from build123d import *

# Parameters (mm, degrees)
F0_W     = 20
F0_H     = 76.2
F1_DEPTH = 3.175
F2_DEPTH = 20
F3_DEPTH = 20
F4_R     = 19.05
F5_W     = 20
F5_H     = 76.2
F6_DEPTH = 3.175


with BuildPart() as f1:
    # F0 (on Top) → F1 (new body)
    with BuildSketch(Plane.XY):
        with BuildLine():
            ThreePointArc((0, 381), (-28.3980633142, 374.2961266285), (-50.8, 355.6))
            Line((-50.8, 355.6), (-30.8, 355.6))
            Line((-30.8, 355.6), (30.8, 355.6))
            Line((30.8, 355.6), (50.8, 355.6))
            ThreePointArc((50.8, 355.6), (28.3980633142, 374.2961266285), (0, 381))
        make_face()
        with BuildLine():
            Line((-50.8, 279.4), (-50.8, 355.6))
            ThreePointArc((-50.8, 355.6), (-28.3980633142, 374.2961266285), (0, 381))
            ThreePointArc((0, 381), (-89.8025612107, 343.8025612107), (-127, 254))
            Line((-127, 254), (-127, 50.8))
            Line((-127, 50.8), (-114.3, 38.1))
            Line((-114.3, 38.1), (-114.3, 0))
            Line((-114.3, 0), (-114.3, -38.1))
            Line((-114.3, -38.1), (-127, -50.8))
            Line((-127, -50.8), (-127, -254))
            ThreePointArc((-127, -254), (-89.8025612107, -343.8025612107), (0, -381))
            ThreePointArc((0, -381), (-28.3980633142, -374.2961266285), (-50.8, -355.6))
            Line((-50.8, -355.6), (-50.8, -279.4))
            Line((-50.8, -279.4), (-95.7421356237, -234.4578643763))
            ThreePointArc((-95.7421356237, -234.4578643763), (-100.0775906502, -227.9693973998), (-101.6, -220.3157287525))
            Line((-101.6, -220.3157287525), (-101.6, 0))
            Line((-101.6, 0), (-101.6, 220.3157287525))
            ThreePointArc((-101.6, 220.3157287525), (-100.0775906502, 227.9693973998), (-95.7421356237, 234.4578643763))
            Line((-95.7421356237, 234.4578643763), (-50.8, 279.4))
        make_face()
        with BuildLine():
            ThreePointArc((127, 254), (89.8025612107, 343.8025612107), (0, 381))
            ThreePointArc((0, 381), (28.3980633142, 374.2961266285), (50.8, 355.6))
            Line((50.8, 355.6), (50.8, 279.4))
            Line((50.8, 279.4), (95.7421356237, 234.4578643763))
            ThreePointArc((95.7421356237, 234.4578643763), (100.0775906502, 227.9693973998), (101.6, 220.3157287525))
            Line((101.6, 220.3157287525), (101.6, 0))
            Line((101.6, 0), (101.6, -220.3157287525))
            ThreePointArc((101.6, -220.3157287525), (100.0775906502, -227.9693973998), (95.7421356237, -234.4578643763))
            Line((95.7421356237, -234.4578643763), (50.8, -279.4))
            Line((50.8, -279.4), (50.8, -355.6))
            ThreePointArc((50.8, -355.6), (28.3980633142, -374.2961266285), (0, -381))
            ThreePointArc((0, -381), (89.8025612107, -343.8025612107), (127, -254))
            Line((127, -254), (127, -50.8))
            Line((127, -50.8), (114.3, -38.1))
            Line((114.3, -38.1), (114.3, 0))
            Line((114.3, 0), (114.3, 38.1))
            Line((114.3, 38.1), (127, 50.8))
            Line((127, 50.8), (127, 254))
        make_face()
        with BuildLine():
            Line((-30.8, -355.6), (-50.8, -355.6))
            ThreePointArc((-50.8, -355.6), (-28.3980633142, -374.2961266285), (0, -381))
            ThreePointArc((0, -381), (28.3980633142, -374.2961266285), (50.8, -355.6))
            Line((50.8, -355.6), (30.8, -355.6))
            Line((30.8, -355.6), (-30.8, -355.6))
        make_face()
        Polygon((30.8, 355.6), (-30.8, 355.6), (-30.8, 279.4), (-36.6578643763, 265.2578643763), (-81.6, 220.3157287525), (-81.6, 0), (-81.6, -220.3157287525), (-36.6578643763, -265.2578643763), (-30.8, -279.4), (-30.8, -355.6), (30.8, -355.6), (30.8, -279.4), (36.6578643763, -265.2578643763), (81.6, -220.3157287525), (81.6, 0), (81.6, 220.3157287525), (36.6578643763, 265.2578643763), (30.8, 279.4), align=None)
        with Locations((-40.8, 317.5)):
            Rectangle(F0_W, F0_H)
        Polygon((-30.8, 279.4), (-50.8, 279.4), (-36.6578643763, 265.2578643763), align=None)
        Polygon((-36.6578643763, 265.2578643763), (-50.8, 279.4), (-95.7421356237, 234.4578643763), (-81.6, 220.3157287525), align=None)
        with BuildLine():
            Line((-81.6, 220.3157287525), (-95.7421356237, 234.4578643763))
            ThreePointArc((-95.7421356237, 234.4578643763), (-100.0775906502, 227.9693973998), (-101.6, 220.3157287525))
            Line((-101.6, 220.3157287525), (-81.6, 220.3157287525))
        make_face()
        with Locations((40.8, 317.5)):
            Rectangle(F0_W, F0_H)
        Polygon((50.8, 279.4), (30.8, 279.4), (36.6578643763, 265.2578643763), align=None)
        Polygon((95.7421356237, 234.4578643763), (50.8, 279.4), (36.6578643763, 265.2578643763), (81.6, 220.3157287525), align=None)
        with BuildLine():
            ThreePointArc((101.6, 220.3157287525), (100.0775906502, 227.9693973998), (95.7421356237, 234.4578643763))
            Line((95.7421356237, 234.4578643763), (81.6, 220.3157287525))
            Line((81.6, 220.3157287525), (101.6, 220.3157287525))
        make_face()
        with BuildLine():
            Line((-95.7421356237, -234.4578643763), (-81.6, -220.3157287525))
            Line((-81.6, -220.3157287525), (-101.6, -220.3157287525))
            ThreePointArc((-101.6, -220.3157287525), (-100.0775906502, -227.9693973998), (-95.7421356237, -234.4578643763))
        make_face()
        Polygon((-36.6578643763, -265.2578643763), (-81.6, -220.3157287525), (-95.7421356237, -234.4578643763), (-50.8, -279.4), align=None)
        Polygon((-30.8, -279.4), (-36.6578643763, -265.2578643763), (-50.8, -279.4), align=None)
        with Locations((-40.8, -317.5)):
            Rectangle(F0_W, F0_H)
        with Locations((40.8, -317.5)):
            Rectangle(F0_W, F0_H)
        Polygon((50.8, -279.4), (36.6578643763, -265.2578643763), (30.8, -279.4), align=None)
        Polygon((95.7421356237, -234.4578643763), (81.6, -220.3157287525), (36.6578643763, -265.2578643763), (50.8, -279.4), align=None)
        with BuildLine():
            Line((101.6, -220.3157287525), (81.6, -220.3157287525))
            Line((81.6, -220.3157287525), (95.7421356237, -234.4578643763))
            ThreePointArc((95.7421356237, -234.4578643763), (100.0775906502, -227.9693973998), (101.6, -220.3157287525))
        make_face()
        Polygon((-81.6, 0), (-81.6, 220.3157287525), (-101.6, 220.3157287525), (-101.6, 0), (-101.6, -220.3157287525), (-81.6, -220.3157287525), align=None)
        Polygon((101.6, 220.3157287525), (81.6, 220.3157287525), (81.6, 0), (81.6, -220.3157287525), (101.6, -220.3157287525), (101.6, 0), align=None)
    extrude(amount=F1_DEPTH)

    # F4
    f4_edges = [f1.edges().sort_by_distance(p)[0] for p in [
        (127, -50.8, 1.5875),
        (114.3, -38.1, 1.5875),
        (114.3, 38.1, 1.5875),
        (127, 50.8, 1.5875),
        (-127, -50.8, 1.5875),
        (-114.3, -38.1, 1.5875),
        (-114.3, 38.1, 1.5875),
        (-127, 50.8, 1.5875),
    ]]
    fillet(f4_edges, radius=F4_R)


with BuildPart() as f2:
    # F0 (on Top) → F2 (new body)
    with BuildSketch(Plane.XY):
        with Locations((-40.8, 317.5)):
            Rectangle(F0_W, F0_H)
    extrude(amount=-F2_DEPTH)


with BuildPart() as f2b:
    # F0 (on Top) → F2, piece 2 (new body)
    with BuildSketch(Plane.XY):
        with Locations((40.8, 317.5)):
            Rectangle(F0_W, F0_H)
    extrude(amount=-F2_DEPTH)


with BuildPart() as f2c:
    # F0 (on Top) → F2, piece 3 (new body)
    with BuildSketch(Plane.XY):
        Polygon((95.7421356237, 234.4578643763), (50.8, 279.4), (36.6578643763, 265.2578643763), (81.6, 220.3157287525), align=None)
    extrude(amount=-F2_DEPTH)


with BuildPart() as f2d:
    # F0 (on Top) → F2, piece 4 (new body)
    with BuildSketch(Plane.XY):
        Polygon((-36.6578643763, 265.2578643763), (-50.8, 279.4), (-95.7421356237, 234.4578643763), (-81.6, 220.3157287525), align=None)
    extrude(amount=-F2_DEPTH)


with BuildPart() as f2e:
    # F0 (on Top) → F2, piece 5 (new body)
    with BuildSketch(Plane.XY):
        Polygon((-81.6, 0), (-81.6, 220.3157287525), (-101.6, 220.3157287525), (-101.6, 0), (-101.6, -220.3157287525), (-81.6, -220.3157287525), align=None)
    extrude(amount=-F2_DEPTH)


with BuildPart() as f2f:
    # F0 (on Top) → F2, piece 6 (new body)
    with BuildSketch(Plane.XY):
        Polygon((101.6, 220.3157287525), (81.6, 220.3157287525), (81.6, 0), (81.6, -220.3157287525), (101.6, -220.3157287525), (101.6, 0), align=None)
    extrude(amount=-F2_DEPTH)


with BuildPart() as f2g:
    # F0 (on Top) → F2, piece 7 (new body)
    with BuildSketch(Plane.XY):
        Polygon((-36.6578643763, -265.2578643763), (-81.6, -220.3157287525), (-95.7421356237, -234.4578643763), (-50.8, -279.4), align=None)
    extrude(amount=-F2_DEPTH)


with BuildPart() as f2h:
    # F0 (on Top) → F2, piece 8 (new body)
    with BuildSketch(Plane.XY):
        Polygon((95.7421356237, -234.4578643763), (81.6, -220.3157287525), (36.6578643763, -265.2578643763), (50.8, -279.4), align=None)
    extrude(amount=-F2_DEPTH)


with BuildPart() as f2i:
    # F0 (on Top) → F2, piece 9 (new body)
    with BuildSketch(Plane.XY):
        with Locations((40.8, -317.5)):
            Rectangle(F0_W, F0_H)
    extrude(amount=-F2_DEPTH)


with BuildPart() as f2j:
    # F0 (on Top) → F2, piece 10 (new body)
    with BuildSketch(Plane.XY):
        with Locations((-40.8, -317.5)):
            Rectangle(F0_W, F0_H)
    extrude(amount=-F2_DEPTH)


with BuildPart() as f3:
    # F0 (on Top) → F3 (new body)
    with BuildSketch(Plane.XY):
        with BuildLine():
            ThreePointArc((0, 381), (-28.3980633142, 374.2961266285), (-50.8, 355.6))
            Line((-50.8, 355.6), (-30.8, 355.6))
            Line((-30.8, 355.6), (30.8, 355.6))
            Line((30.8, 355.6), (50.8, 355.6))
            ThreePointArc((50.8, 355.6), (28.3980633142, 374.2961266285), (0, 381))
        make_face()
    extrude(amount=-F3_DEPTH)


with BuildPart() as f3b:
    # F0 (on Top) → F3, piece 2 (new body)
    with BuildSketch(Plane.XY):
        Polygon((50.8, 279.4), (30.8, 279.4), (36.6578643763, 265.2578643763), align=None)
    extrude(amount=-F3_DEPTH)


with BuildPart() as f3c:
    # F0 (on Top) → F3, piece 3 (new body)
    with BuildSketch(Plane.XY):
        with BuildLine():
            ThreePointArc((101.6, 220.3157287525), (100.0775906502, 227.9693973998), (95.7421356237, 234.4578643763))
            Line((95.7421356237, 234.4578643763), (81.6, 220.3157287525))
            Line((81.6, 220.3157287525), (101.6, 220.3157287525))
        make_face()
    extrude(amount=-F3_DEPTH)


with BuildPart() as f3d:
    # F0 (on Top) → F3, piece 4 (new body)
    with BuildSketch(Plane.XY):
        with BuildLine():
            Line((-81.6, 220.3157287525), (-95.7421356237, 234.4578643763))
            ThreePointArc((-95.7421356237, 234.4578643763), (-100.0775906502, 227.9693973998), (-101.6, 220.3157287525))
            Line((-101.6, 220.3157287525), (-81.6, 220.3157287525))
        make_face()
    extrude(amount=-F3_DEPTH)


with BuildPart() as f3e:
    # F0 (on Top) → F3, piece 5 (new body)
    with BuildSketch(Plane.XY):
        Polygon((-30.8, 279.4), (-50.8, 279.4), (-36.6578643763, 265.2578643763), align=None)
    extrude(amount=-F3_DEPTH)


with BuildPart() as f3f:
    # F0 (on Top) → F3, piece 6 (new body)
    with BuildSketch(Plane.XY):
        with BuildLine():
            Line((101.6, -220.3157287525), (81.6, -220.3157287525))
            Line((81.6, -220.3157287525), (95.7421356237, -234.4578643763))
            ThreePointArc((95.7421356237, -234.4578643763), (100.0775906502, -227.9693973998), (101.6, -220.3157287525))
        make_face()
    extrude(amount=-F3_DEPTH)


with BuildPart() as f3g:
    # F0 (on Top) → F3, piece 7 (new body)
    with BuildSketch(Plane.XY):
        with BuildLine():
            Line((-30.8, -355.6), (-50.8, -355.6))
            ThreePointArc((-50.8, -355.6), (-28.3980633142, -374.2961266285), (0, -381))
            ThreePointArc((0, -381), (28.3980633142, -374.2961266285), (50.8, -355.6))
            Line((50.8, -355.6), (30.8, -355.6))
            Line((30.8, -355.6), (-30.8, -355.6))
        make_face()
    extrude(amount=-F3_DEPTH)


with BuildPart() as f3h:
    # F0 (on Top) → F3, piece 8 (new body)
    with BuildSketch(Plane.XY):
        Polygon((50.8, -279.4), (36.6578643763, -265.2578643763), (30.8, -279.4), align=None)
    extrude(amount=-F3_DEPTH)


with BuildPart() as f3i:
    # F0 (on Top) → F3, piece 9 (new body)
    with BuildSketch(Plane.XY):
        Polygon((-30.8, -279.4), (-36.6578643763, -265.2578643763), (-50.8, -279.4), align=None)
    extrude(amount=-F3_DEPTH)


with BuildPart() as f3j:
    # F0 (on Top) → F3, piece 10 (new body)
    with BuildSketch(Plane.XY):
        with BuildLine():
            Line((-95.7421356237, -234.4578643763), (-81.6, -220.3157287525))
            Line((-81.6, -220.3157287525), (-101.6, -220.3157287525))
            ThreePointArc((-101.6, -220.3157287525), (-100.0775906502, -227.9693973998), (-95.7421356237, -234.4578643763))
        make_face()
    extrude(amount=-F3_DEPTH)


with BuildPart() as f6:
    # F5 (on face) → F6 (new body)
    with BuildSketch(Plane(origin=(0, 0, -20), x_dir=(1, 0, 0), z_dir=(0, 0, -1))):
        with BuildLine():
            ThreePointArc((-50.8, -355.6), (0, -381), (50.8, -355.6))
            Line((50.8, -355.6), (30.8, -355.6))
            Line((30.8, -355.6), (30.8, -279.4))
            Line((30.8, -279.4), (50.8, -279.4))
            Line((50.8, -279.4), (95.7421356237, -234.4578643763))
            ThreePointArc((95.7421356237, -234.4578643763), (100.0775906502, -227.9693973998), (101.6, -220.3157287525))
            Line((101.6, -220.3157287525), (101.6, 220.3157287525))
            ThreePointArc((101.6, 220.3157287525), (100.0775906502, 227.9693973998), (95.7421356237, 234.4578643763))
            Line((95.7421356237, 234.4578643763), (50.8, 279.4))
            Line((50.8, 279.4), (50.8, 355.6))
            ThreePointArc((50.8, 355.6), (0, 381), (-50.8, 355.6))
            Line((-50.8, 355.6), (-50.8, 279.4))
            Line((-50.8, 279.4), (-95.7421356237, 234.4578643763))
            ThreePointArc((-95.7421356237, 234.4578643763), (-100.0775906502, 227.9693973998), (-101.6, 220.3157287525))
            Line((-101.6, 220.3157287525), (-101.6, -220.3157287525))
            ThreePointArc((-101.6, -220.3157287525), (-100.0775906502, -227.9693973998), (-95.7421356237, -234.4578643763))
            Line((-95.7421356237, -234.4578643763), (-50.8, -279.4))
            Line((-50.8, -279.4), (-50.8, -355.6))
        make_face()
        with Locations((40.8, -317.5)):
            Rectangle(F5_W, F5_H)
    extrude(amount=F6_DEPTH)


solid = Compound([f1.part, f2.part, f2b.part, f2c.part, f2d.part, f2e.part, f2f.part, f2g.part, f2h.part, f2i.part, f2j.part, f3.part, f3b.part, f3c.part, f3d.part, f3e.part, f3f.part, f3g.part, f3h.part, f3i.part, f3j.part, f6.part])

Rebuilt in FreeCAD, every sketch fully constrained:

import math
import FreeCAD as App
import Part
import Sketcher
Q = App.Units.Quantity


def edges_at(feature, points):
    """Names of the edges that pass closest to the given points."""
    edges = feature.Shape.Edges
    near = lambda p: min(range(len(edges)), key=lambda i: edges[i].distToShape(Part.Vertex(*p))[0])
    return sorted({f"Edge{near(p) + 1}" for p in points})


def add_polygon(sketch, points):
    """Adds a closed chain of lines whose ends are joined by coincident constraints."""
    first, n = sketch.GeometryCount, len(points)
    for a, b in zip(points, points[1:] + points[:1]):
        sketch.addGeometry(Part.LineSegment(App.Vector(*a, 0), App.Vector(*b, 0)), False)
    for i in range(n):
        sketch.addConstraint(Sketcher.Constraint("Coincident", first + i, 2, first + (i + 1) % n, 1))

doc = App.newDocument("Part")
body = doc.addObject("PartDesign::Body", "Body")

# Sketch on XY plane
sketch1 = body.newObject("Sketcher::SketchObject", "Sketch")
sketch1.AttachmentSupport = (doc.getObject("XY_Plane"), [""])
sketch1.MapMode = "FlatFace"
sketch1.addGeometry([
    Part.ArcOfCircle(Part.Circle(App.Vector(0, -254, 0), App.Vector(0, 0, 1), 127), math.radians(180), math.radians(360)),  # 0
    Part.LineSegment(App.Vector(127, -254, 0), App.Vector(127, -50.8, 0)),  # 1
    Part.LineSegment(App.Vector(127, -50.8, 0), App.Vector(114.3, -38.1, 0)),  # 2
    Part.LineSegment(App.Vector(114.3, -38.1, 0), App.Vector(114.3, 38.1, 0)),  # 3
    Part.LineSegment(App.Vector(114.3, 38.1, 0), App.Vector(127, 50.8, 0)),  # 4
    Part.LineSegment(App.Vector(127, 50.8, 0), App.Vector(127, 254, 0)),  # 5
    Part.ArcOfCircle(Part.Circle(App.Vector(0, 254, 0), App.Vector(0, 0, 1), 127), math.radians(0), math.radians(180)),  # 6
    Part.LineSegment(App.Vector(-127, 254, 0), App.Vector(-127, 50.8, 0)),  # 7
    Part.LineSegment(App.Vector(-127, 50.8, 0), App.Vector(-114.3, 38.1, 0)),  # 8
    Part.LineSegment(App.Vector(-114.3, 38.1, 0), App.Vector(-114.3, -38.1, 0)),  # 9
    Part.LineSegment(App.Vector(-114.3, -38.1, 0), App.Vector(-127, -50.8, 0)),  # 10
    Part.LineSegment(App.Vector(-127, -50.8, 0), App.Vector(-127, -254, 0)),  # 11
], False)
sketch1.addConstraint([
    Sketcher.Constraint("Tangent", 0, 2, 1, 1),
    Sketcher.Constraint("Coincident", 1, 2, 2, 1),
    Sketcher.Constraint("Coincident", 2, 2, 3, 1),
    Sketcher.Constraint("Coincident", 3, 2, 4, 1),
    Sketcher.Constraint("Coincident", 4, 2, 5, 1),
    Sketcher.Constraint("Tangent", 5, 2, 6, 1),
    Sketcher.Constraint("Tangent", 6, 2, 7, 1),
    Sketcher.Constraint("Coincident", 7, 2, 8, 1),
    Sketcher.Constraint("Coincident", 8, 2, 9, 1),
    Sketcher.Constraint("Coincident", 9, 2, 10, 1),
    Sketcher.Constraint("Coincident", 10, 2, 11, 1),
    Sketcher.Constraint("Tangent", 11, 2, 0, 1),
    Sketcher.Constraint("Vertical", 1),
    Sketcher.Constraint("Vertical", 3),
    Sketcher.Constraint("Vertical", 5),
    Sketcher.Constraint("Vertical", 7),
    Sketcher.Constraint("Vertical", 9),
    Sketcher.Constraint("Vertical", 11),
    Sketcher.Constraint("Equal", 0, 6),
    Sketcher.Constraint("Symmetric", 0, 3, 6, 3, -1, 1),
    Sketcher.Constraint("Symmetric", 2, 2, 8, 2, -1, 1),
    Sketcher.Constraint("Symmetric", 4, 2, 7, 2, -2),
    Sketcher.Constraint("Perpendicular", 2, 4),
    Sketcher.Constraint("Perpendicular", 4, 8),
    Sketcher.Constraint("Perpendicular", 8, 10),
    Sketcher.Constraint("Horizontal", 3, 2, 8, 2),
    Sketcher.Constraint("Horizontal", 2, 2, 9, 2),
    Sketcher.Constraint("Radius", 0, Q("5 in")),
    Sketcher.Constraint("DistanceY", 1, 1, 1, 2, Q("8 in")),
    Sketcher.Constraint("DistanceY", 3, 1, 3, 2, Q("3 in")),
    Sketcher.Constraint("DistanceY", 0, 3, -1, 1, Q("10 in")),
])
pad1 = body.newObject("PartDesign::Pad", "Pad")
pad1.Profile = sketch1
pad1.Length = Q("0.125 in")
doc.recompute()

fillet = body.newObject("PartDesign::Fillet", "Fillet")
fillet.Base = (pad1, edges_at(pad1, [
    (127, -50.8, 1.587),
    (114.3, -38.1, 1.587),
    (114.3, 38.1, 1.587),
    (127, 50.8, 1.587),
    (-127, -50.8, 1.587),
    (-114.3, -38.1, 1.587),
    (-114.3, 38.1, 1.587),
    (-127, 50.8, 1.587),
]))
fillet.Radius = Q("0.75 in")
body2 = doc.addObject("PartDesign::Body", "Body001")

# Sketch on XY plane
sketch2 = body2.newObject("Sketcher::SketchObject", "Sketch001")
sketch2.AttachmentSupport = (doc.getObject("XY_Plane001"), [""])
sketch2.MapMode = "FlatFace"
add_polygon(sketch2, [(-50.8, 355.6), (-50.8, 279.4), (-30.8, 279.4), (-30.8, 355.6)])  # lines 0-3
sketch2.addConstraint([
    Sketcher.Constraint("Vertical", 0),
    Sketcher.Constraint("Horizontal", 1),
    Sketcher.Constraint("Vertical", 2),
    Sketcher.Constraint("Horizontal", 3),
    Sketcher.Constraint("DistanceY", 0, 2, 0, 1, Q("3 in")),
    Sketcher.Constraint("DistanceX", 0, 2, -1, 1, Q("2 in")),
    Sketcher.Constraint("DistanceY", -1, 1, 0, 2, Q("11 in")),
    Sketcher.Constraint("DistanceX", 1, 1, 1, 2, Q("20 mm")),
])
pad2 = body2.newObject("PartDesign::Pad", "Pad001")
pad2.Profile = sketch2
pad2.Length = 20
pad2.Reversed = True
body3 = doc.addObject("PartDesign::Body", "Body002")

# Sketch on XY plane
sketch3 = body3.newObject("Sketcher::SketchObject", "Sketch002")
sketch3.AttachmentSupport = (doc.getObject("XY_Plane002"), [""])
sketch3.MapMode = "FlatFace"
add_polygon(sketch3, [(30.8, 355.6), (30.8, 279.4), (50.8, 279.4), (50.8, 355.6)])  # lines 0-3
sketch3.addConstraint([
    Sketcher.Constraint("Vertical", 0),
    Sketcher.Constraint("Horizontal", 1),
    Sketcher.Constraint("Vertical", 2),
    Sketcher.Constraint("Horizontal", 3),
    Sketcher.Constraint("DistanceY", 0, 2, 0, 1, Q("3 in")),
    Sketcher.Constraint("DistanceY", -1, 1, 0, 2, Q("11 in")),
    Sketcher.Constraint("DistanceX", -1, 1, 1, 2, Q("2 in")),
    Sketcher.Constraint("DistanceX", 1, 1, 1, 2, Q("20 mm")),
])
pad3 = body3.newObject("PartDesign::Pad", "Pad002")
pad3.Profile = sketch3
pad3.Length = 20
pad3.Reversed = True
body4 = doc.addObject("PartDesign::Body", "Body003")

# Sketch on XY plane
sketch4 = body4.newObject("Sketcher::SketchObject", "Sketch003")
sketch4.AttachmentSupport = (doc.getObject("XY_Plane003"), [""])
sketch4.MapMode = "FlatFace"
add_polygon(sketch4, [(95.742136, 234.457864), (50.8, 279.4), (36.657864, 265.257864), (81.6, 220.315729)])  # lines 0-3
sketch4.addConstraint([
    Sketcher.Constraint("Perpendicular", 0, 1),
    Sketcher.Constraint("Perpendicular", 1, 2),
    Sketcher.Constraint("Perpendicular", 2, 3),
    Sketcher.Constraint("DistanceX", -1, 1, 0, 2, Q("2 in")),
    Sketcher.Constraint("DistanceY", -1, 1, 0, 2, Q("11 in")),
    Sketcher.Constraint("Angle", 0, Q("135 deg")),
    Sketcher.Constraint("Distance", 1, Q("20 mm")),
    Sketcher.Constraint("DistanceX", -1, 1, 2, 2, Q("81.6 mm")),
])
pad4 = body4.newObject("PartDesign::Pad", "Pad003")
pad4.Profile = sketch4
pad4.Length = 20
pad4.Reversed = True
body5 = doc.addObject("PartDesign::Body", "Body004")

# Sketch on XY plane
sketch5 = body5.newObject("Sketcher::SketchObject", "Sketch004")
sketch5.AttachmentSupport = (doc.getObject("XY_Plane004"), [""])
sketch5.MapMode = "FlatFace"
add_polygon(sketch5, [(-36.657864, 265.257864), (-50.8, 279.4), (-95.742136, 234.457864), (-81.6, 220.315729)])  # lines 0-3
sketch5.addConstraint([
    Sketcher.Constraint("Perpendicular", 0, 1),
    Sketcher.Constraint("Perpendicular", 1, 2),
    Sketcher.Constraint("Perpendicular", 2, 3),
    Sketcher.Constraint("DistanceX", 0, 2, -1, 1, Q("2 in")),
    Sketcher.Constraint("DistanceY", -1, 1, 0, 2, Q("11 in")),
    Sketcher.Constraint("Angle", 0, Q("135 deg")),
    Sketcher.Constraint("Distance", 0, Q("20 mm")),
    Sketcher.Constraint("DistanceX", 2, 2, -1, 1, Q("81.6 mm")),
])
pad5 = body5.newObject("PartDesign::Pad", "Pad004")
pad5.Profile = sketch5
pad5.Length = 20
pad5.Reversed = True
body6 = doc.addObject("PartDesign::Body", "Body005")

# Sketch on XY plane
sketch6 = body6.newObject("Sketcher::SketchObject", "Sketch005")
sketch6.AttachmentSupport = (doc.getObject("XY_Plane005"), [""])
sketch6.MapMode = "FlatFace"
add_polygon(sketch6, [(-81.6, 220.315729), (-101.6, 220.315729), (-101.6, -220.315729), (-81.6, -220.315729)])  # lines 0-3
sketch6.addConstraint([
    Sketcher.Constraint("Horizontal", 0),
    Sketcher.Constraint("Vertical", 1),
    Sketcher.Constraint("Horizontal", 2),
    Sketcher.Constraint("Vertical", 3),
    Sketcher.Constraint("DistanceX", 0, 2, -1, 1, Q("4 in")),
    Sketcher.Constraint("DistanceX", 0, 2, 0, 1, Q("20 mm")),
    Sketcher.Constraint("DistanceY", 1, 2, 1, 1, Q("440.631458 mm")),
    Sketcher.Constraint("DistanceY", -1, 1, 0, 2, Q("220.315729 mm")),
])
pad6 = body6.newObject("PartDesign::Pad", "Pad005")
pad6.Profile = sketch6
pad6.Length = 20
pad6.Reversed = True
body7 = doc.addObject("PartDesign::Body", "Body006")

# Sketch on XY plane
sketch7 = body7.newObject("Sketcher::SketchObject", "Sketch006")
sketch7.AttachmentSupport = (doc.getObject("XY_Plane006"), [""])
sketch7.MapMode = "FlatFace"
add_polygon(sketch7, [(101.6, 220.315729), (81.6, 220.315729), (81.6, -220.315729), (101.6, -220.315729)])  # lines 0-3
sketch7.addConstraint([
    Sketcher.Constraint("Horizontal", 0),
    Sketcher.Constraint("Vertical", 1),
    Sketcher.Constraint("Horizontal", 2),
    Sketcher.Constraint("Vertical", 3),
    Sketcher.Constraint("DistanceX", -1, 1, 2, 2, Q("4 in")),
    Sketcher.Constraint("DistanceX", 0, 2, 0, 1, Q("20 mm")),
    Sketcher.Constraint("DistanceY", 1, 2, 1, 1, Q("440.631458 mm")),
    Sketcher.Constraint("DistanceY", -1, 1, 0, 2, Q("220.315729 mm")),
])
pad7 = body7.newObject("PartDesign::Pad", "Pad006")
pad7.Profile = sketch7
pad7.Length = 20
pad7.Reversed = True
body8 = doc.addObject("PartDesign::Body", "Body007")

# Sketch on XY plane
sketch8 = body8.newObject("Sketcher::SketchObject", "Sketch007")
sketch8.AttachmentSupport = (doc.getObject("XY_Plane007"), [""])
sketch8.MapMode = "FlatFace"
add_polygon(sketch8, [(-36.657864, -265.257864), (-81.6, -220.315729), (-95.742136, -234.457864), (-50.8, -279.4)])  # lines 0-3
sketch8.addConstraint([
    Sketcher.Constraint("Perpendicular", 0, 1),
    Sketcher.Constraint("Perpendicular", 1, 2),
    Sketcher.Constraint("Perpendicular", 2, 3),
    Sketcher.Constraint("DistanceX", 2, 2, -1, 1, Q("2 in")),
    Sketcher.Constraint("DistanceY", 2, 2, -1, 1, Q("11 in")),
    Sketcher.Constraint("Angle", 0, Q("135 deg")),
    Sketcher.Constraint("Distance", 1, Q("20 mm")),
    Sketcher.Constraint("DistanceX", 0, 2, -1, 1, Q("81.6 mm")),
])
pad8 = body8.newObject("PartDesign::Pad", "Pad007")
pad8.Profile = sketch8
pad8.Length = 20
pad8.Reversed = True
body9 = doc.addObject("PartDesign::Body", "Body008")

# Sketch on XY plane
sketch9 = body9.newObject("Sketcher::SketchObject", "Sketch008")
sketch9.AttachmentSupport = (doc.getObject("XY_Plane008"), [""])
sketch9.MapMode = "FlatFace"
add_polygon(sketch9, [(95.742136, -234.457864), (81.6, -220.315729), (36.657864, -265.257864), (50.8, -279.4)])  # lines 0-3
sketch9.addConstraint([
    Sketcher.Constraint("Perpendicular", 0, 1),
    Sketcher.Constraint("Perpendicular", 1, 2),
    Sketcher.Constraint("Perpendicular", 2, 3),
    Sketcher.Constraint("DistanceX", -1, 1, 2, 2, Q("2 in")),
    Sketcher.Constraint("DistanceY", 2, 2, -1, 1, Q("11 in")),
    Sketcher.Constraint("Angle", 0, Q("135 deg")),
    Sketcher.Constraint("Distance", 0, Q("20 mm")),
    Sketcher.Constraint("DistanceX", -1, 1, 0, 2, Q("81.6 mm")),
])
pad9 = body9.newObject("PartDesign::Pad", "Pad008")
pad9.Profile = sketch9
pad9.Length = 20
pad9.Reversed = True
body10 = doc.addObject("PartDesign::Body", "Body009")

# Sketch on XY plane
sketch10 = body10.newObject("Sketcher::SketchObject", "Sketch009")
sketch10.AttachmentSupport = (doc.getObject("XY_Plane009"), [""])
sketch10.MapMode = "FlatFace"
add_polygon(sketch10, [(30.8, -279.4), (30.8, -355.6), (50.8, -355.6), (50.8, -279.4)])  # lines 0-3
sketch10.addConstraint([
    Sketcher.Constraint("Vertical", 0),
    Sketcher.Constraint("Horizontal", 1),
    Sketcher.Constraint("Vertical", 2),
    Sketcher.Constraint("Horizontal", 3),
    Sketcher.Constraint("DistanceY", 0, 2, 0, 1, Q("3 in")),
    Sketcher.Constraint("DistanceY", 0, 2, -1, 1, Q("14 in")),
    Sketcher.Constraint("DistanceX", -1, 1, 1, 2, Q("2 in")),
    Sketcher.Constraint("DistanceX", 1, 1, 1, 2, Q("20 mm")),
])
pad10 = body10.newObject("PartDesign::Pad", "Pad009")
pad10.Profile = sketch10
pad10.Length = 20
pad10.Reversed = True
body11 = doc.addObject("PartDesign::Body", "Body010")

# Sketch on XY plane
sketch11 = body11.newObject("Sketcher::SketchObject", "Sketch010")
sketch11.AttachmentSupport = (doc.getObject("XY_Plane010"), [""])
sketch11.MapMode = "FlatFace"
add_polygon(sketch11, [(-50.8, -279.4), (-50.8, -355.6), (-30.8, -355.6), (-30.8, -279.4)])  # lines 0-3
sketch11.addConstraint([
    Sketcher.Constraint("Vertical", 0),
    Sketcher.Constraint("Horizontal", 1),
    Sketcher.Constraint("Vertical", 2),
    Sketcher.Constraint("Horizontal", 3),
    Sketcher.Constraint("DistanceY", 0, 2, 0, 1, Q("3 in")),
    Sketcher.Constraint("DistanceX", 0, 2, -1, 1, Q("2 in")),
    Sketcher.Constraint("DistanceY", 0, 2, -1, 1, Q("14 in")),
    Sketcher.Constraint("DistanceX", 1, 1, 1, 2, Q("20 mm")),
])
pad11 = body11.newObject("PartDesign::Pad", "Pad010")
pad11.Profile = sketch11
pad11.Length = 20
pad11.Reversed = True
body12 = doc.addObject("PartDesign::Body", "Body011")

# Sketch on XY plane
sketch12 = body12.newObject("Sketcher::SketchObject", "Sketch011")
sketch12.AttachmentSupport = (doc.getObject("XY_Plane011"), [""])
sketch12.MapMode = "FlatFace"
sketch12.addGeometry([
    Part.ArcOfCircle(Part.Circle(App.Vector(0, 317.5, 0), App.Vector(0, 0, 1), 63.5), math.radians(90), math.radians(143.130102)),
    Part.LineSegment(App.Vector(-50.8, 355.6, 0), App.Vector(50.8, 355.6, 0)),
    Part.ArcOfCircle(Part.Circle(App.Vector(0, 317.5, 0), App.Vector(0, 0, 1), 63.5), math.radians(36.869898), math.radians(90)),
], False)
sketch12.addConstraint([
    Sketcher.Constraint("Coincident", 0, 2, 1, 1),
    Sketcher.Constraint("Coincident", 1, 2, 2, 1),
    Sketcher.Constraint("Tangent", 2, 2, 0, 1),
    Sketcher.Constraint("Horizontal", 1),
    Sketcher.Constraint("Equal", 0, 2),
    Sketcher.Constraint("PointOnObject", 0, 3, -2),
    Sketcher.Constraint("PointOnObject", 2, 2, -2),
    Sketcher.Constraint("Radius", 0, Q("2.5 in")),
    Sketcher.Constraint("DistanceX", 1, 1, 1, 2, Q("4 in")),
    Sketcher.Constraint("DistanceY", -1, 1, 0, 2, Q("14 in")),
])
pad12 = body12.newObject("PartDesign::Pad", "Pad011")
pad12.Profile = sketch12
pad12.Length = 20
pad12.Reversed = True
body13 = doc.addObject("PartDesign::Body", "Body012")

# Sketch on XY plane
sketch13 = body13.newObject("Sketcher::SketchObject", "Sketch012")
sketch13.AttachmentSupport = (doc.getObject("XY_Plane012"), [""])
sketch13.MapMode = "FlatFace"
add_polygon(sketch13, [(50.8, 279.4), (30.8, 279.4), (36.657864, 265.257864)])  # lines 0-2
sketch13.addConstraint([
    Sketcher.Constraint("Horizontal", 0),
    Sketcher.Constraint("DistanceY", -1, 1, 0, 2, Q("11 in")),
    Sketcher.Constraint("DistanceX", -1, 1, 2, 2, Q("2 in")),
    Sketcher.Constraint("Angle", 2, Q("45 deg")),
    Sketcher.Constraint("Angle", 1, Q("-67.5 deg")),
    Sketcher.Constraint("DistanceX", 0, 2, 0, 1, Q("20 mm")),
])
pad13 = body13.newObject("PartDesign::Pad", "Pad012")
pad13.Profile = sketch13
pad13.Length = 20
pad13.Reversed = True
body14 = doc.addObject("PartDesign::Body", "Body013")

# Sketch on XY plane
sketch14 = body14.newObject("Sketcher::SketchObject", "Sketch013")
sketch14.AttachmentSupport = (doc.getObject("XY_Plane013"), [""])
sketch14.MapMode = "FlatFace"
sketch14.addGeometry([
    Part.ArcOfCircle(Part.Circle(App.Vector(81.6, 220.315729, 0), App.Vector(0, 0, 1), 20), math.radians(0), math.radians(45)),
    Part.LineSegment(App.Vector(95.742136, 234.457864, 0), App.Vector(81.6, 220.315729, 0)),
    Part.LineSegment(App.Vector(81.6, 220.315729, 0), App.Vector(101.6, 220.315729, 0)),
], False)
sketch14.addConstraint([
    Sketcher.Constraint("Coincident", 0, 2, 1, 1),
    Sketcher.Constraint("Coincident", 1, 2, 2, 1),
    Sketcher.Constraint("Coincident", 2, 2, 0, 1),
    Sketcher.Constraint("Horizontal", 2),
    Sketcher.Constraint("Coincident", 1, 2, 0, 3),
    Sketcher.Constraint("DistanceX", -1, 1, 2, 2, Q("4 in")),
    Sketcher.Constraint("Angle", 1, Q("-135 deg")),
    Sketcher.Constraint("Radius", 0, Q("20 mm")),
    Sketcher.Constraint("DistanceY", -1, 1, 0, 3, Q("220.315729 mm")),
])
pad14 = body14.newObject("PartDesign::Pad", "Pad013")
pad14.Profile = sketch14
pad14.Length = 20
pad14.Reversed = True
body15 = doc.addObject("PartDesign::Body", "Body014")

# Sketch on XY plane
sketch15 = body15.newObject("Sketcher::SketchObject", "Sketch014")
sketch15.AttachmentSupport = (doc.getObject("XY_Plane014"), [""])
sketch15.MapMode = "FlatFace"
sketch15.addGeometry([
    Part.LineSegment(App.Vector(-81.6, 220.315729, 0), App.Vector(-95.742136, 234.457864, 0)),
    Part.ArcOfCircle(Part.Circle(App.Vector(-81.6, 220.315729, 0), App.Vector(0, 0, 1), 20), math.radians(135), math.radians(180)),
    Part.LineSegment(App.Vector(-101.6, 220.315729, 0), App.Vector(-81.6, 220.315729, 0)),
], False)
sketch15.addConstraint([
    Sketcher.Constraint("Coincident", 0, 2, 1, 1),
    Sketcher.Constraint("Coincident", 1, 2, 2, 1),
    Sketcher.Constraint("Coincident", 2, 2, 0, 1),
    Sketcher.Constraint("Horizontal", 2),
    Sketcher.Constraint("Coincident", 2, 2, 1, 3),
    Sketcher.Constraint("DistanceX", 1, 2, -1, 1, Q("4 in")),
    Sketcher.Constraint("Angle", 0, Q("135 deg")),
    Sketcher.Constraint("Radius", 1, Q("20 mm")),
    Sketcher.Constraint("DistanceY", -1, 1, 1, 3, Q("220.315729 mm")),
])
pad15 = body15.newObject("PartDesign::Pad", "Pad014")
pad15.Profile = sketch15
pad15.Length = 20
pad15.Reversed = True
body16 = doc.addObject("PartDesign::Body", "Body015")

# Sketch on XY plane
sketch16 = body16.newObject("Sketcher::SketchObject", "Sketch015")
sketch16.AttachmentSupport = (doc.getObject("XY_Plane015"), [""])
sketch16.MapMode = "FlatFace"
add_polygon(sketch16, [(-30.8, 279.4), (-50.8, 279.4), (-36.657864, 265.257864)])  # lines 0-2
sketch16.addConstraint([
    Sketcher.Constraint("Horizontal", 0),
    Sketcher.Constraint("DistanceX", 0, 2, -1, 1, Q("2 in")),
    Sketcher.Constraint("DistanceY", -1, 1, 0, 2, Q("11 in")),
    Sketcher.Constraint("Angle", 1, Q("-45 deg")),
    Sketcher.Constraint("Angle", 2, Q("67.5 deg")),
    Sketcher.Constraint("DistanceX", 0, 2, 0, 1, Q("20 mm")),
])
pad16 = body16.newObject("PartDesign::Pad", "Pad015")
pad16.Profile = sketch16
pad16.Length = 20
pad16.Reversed = True
body17 = doc.addObject("PartDesign::Body", "Body016")

# Sketch on XY plane
sketch17 = body17.newObject("Sketcher::SketchObject", "Sketch016")
sketch17.AttachmentSupport = (doc.getObject("XY_Plane016"), [""])
sketch17.MapMode = "FlatFace"
sketch17.addGeometry([
    Part.LineSegment(App.Vector(101.6, -220.315729, 0), App.Vector(81.6, -220.315729, 0)),
    Part.LineSegment(App.Vector(81.6, -220.315729, 0), App.Vector(95.742136, -234.457864, 0)),
    Part.ArcOfCircle(Part.Circle(App.Vector(81.6, -220.315729, 0), App.Vector(0, 0, 1), 20), math.radians(-45), math.radians(0)),
], False)
sketch17.addConstraint([
    Sketcher.Constraint("Coincident", 0, 2, 1, 1),
    Sketcher.Constraint("Coincident", 1, 2, 2, 1),
    Sketcher.Constraint("Coincident", 2, 2, 0, 1),
    Sketcher.Constraint("Horizontal", 0),
    Sketcher.Constraint("Coincident", 0, 2, 2, 3),
    Sketcher.Constraint("DistanceX", -1, 1, 2, 2, Q("4 in")),
    Sketcher.Constraint("Angle", 1, Q("-45 deg")),
    Sketcher.Constraint("Radius", 2, Q("20 mm")),
    Sketcher.Constraint("DistanceY", 2, 3, -1, 1, Q("220.315729 mm")),
])
pad17 = body17.newObject("PartDesign::Pad", "Pad016")
pad17.Profile = sketch17
pad17.Length = 20
pad17.Reversed = True
body18 = doc.addObject("PartDesign::Body", "Body017")

# Sketch on XY plane
sketch18 = body18.newObject("Sketcher::SketchObject", "Sketch017")
sketch18.AttachmentSupport = (doc.getObject("XY_Plane017"), [""])
sketch18.MapMode = "FlatFace"
sketch18.addGeometry([
    Part.ArcOfCircle(Part.Circle(App.Vector(0, -317.5, 0), App.Vector(0, 0, 1), 63.5), math.radians(-143.130102), math.radians(-90)),
    Part.ArcOfCircle(Part.Circle(App.Vector(0, -317.5, 0), App.Vector(0, 0, 1), 63.5), math.radians(-90), math.radians(-36.869898)),
    Part.LineSegment(App.Vector(50.8, -355.6, 0), App.Vector(-50.8, -355.6, 0)),
], False)
sketch18.addConstraint([
    Sketcher.Constraint("Tangent", 0, 2, 1, 1),
    Sketcher.Constraint("Coincident", 1, 2, 2, 1),
    Sketcher.Constraint("Coincident", 2, 2, 0, 1),
    Sketcher.Constraint("Horizontal", 2),
    Sketcher.Constraint("Equal", 0, 1),
    Sketcher.Constraint("PointOnObject", 0, 3, -2),
    Sketcher.Constraint("PointOnObject", 0, 2, -2),
    Sketcher.Constraint("Radius", 0, Q("2.5 in")),
    Sketcher.Constraint("DistanceX", 2, 2, 2, 1, Q("4 in")),
    Sketcher.Constraint("DistanceY", 0, 2, -1, 1, Q("15 in")),
])
pad18 = body18.newObject("PartDesign::Pad", "Pad017")
pad18.Profile = sketch18
pad18.Length = 20
pad18.Reversed = True
body19 = doc.addObject("PartDesign::Body", "Body018")

# Sketch on XY plane
sketch19 = body19.newObject("Sketcher::SketchObject", "Sketch018")
sketch19.AttachmentSupport = (doc.getObject("XY_Plane018"), [""])
sketch19.MapMode = "FlatFace"
add_polygon(sketch19, [(50.8, -279.4), (36.657864, -265.257864), (30.8, -279.4)])  # lines 0-2
sketch19.addConstraint([
    Sketcher.Constraint("Horizontal", 2),
    Sketcher.Constraint("DistanceY", 1, 2, -1, 1, Q("11 in")),
    Sketcher.Constraint("DistanceX", -1, 1, 2, 2, Q("2 in")),
    Sketcher.Constraint("Angle", 0, Q("135 deg")),
    Sketcher.Constraint("Angle", 1, Q("-112.5 deg")),
    Sketcher.Constraint("DistanceX", 2, 1, 2, 2, Q("20 mm")),
])
pad19 = body19.newObject("PartDesign::Pad", "Pad018")
pad19.Profile = sketch19
pad19.Length = 20
pad19.Reversed = True
body20 = doc.addObject("PartDesign::Body", "Body019")

# Sketch on XY plane
sketch20 = body20.newObject("Sketcher::SketchObject", "Sketch019")
sketch20.AttachmentSupport = (doc.getObject("XY_Plane019"), [""])
sketch20.MapMode = "FlatFace"
add_polygon(sketch20, [(-30.8, -279.4), (-36.657864, -265.257864), (-50.8, -279.4)])  # lines 0-2
sketch20.addConstraint([
    Sketcher.Constraint("Horizontal", 2),
    Sketcher.Constraint("DistanceX", 1, 2, -1, 1, Q("2 in")),
    Sketcher.Constraint("DistanceY", 1, 2, -1, 1, Q("11 in")),
    Sketcher.Constraint("Angle", 1, Q("-135 deg")),
    Sketcher.Constraint("Angle", 0, Q("112.5 deg")),
    Sketcher.Constraint("DistanceX", 2, 1, 2, 2, Q("20 mm")),
])
pad20 = body20.newObject("PartDesign::Pad", "Pad019")
pad20.Profile = sketch20
pad20.Length = 20
pad20.Reversed = True
body21 = doc.addObject("PartDesign::Body", "Body020")

# Sketch on XY plane
sketch21 = body21.newObject("Sketcher::SketchObject", "Sketch020")
sketch21.AttachmentSupport = (doc.getObject("XY_Plane020"), [""])
sketch21.MapMode = "FlatFace"
sketch21.addGeometry([
    Part.LineSegment(App.Vector(-95.742136, -234.457864, 0), App.Vector(-81.6, -220.315729, 0)),
    Part.LineSegment(App.Vector(-81.6, -220.315729, 0), App.Vector(-101.6, -220.315729, 0)),
    Part.ArcOfCircle(Part.Circle(App.Vector(-81.6, -220.315729, 0), App.Vector(0, 0, 1), 20), math.radians(-180), math.radians(-135)),
], False)
sketch21.addConstraint([
    Sketcher.Constraint("Coincident", 0, 2, 1, 1),
    Sketcher.Constraint("Coincident", 1, 2, 2, 1),
    Sketcher.Constraint("Coincident", 2, 2, 0, 1),
    Sketcher.Constraint("Horizontal", 1),
    Sketcher.Constraint("Coincident", 0, 2, 2, 3),
    Sketcher.Constraint("DistanceX", 1, 2, -1, 1, Q("4 in")),
    Sketcher.Constraint("Angle", 0, Q("45 deg")),
    Sketcher.Constraint("Radius", 2, Q("20 mm")),
    Sketcher.Constraint("DistanceY", 2, 3, -1, 1, Q("220.315729 mm")),
])
pad21 = body21.newObject("PartDesign::Pad", "Pad020")
pad21.Profile = sketch21
pad21.Length = 20
pad21.Reversed = True
body22 = doc.addObject("PartDesign::Body", "Body021")

# Sketch on XY plane
sketch22 = body22.newObject("Sketcher::SketchObject", "Sketch021")
sketch22.AttachmentSupport = (doc.getObject("XY_Plane021"), [""])
sketch22.MapMode = "FlatFace"
sketch22.AttachmentOffset = App.Placement(App.Vector(0, 0, -20), App.Rotation())
sketch22.addGeometry([
    Part.ArcOfCircle(Part.Circle(App.Vector(0, 317.5, 0), App.Vector(0, 0, 1), 63.5), math.radians(36.869898), math.radians(143.130102)),  # 0
    Part.LineSegment(App.Vector(50.8, 355.6, 0), App.Vector(50.8, 279.4, 0)),  # 1
    Part.LineSegment(App.Vector(50.8, 279.4, 0), App.Vector(95.742136, 234.457864, 0)),  # 2
    Part.ArcOfCircle(Part.Circle(App.Vector(81.6, 220.315729, 0), App.Vector(0, 0, 1), 20), math.radians(0), math.radians(45)),  # 3
    Part.LineSegment(App.Vector(101.6, 220.315729, 0), App.Vector(101.6, -220.315729, 0)),  # 4
    Part.ArcOfCircle(Part.Circle(App.Vector(81.6, -220.315729, 0), App.Vector(0, 0, 1), 20), math.radians(-45), math.radians(0)),  # 5
    Part.LineSegment(App.Vector(95.742136, -234.457864, 0), App.Vector(50.8, -279.4, 0)),  # 6
    Part.LineSegment(App.Vector(50.8, -279.4, 0), App.Vector(50.8, -355.6, 0)),  # 7
    Part.ArcOfCircle(Part.Circle(App.Vector(0, -317.5, 0), App.Vector(0, 0, 1), 63.5), math.radians(-143.130102), math.radians(-36.869898)),  # 8
    Part.LineSegment(App.Vector(-50.8, -355.6, 0), App.Vector(-50.8, -279.4, 0)),  # 9
    Part.LineSegment(App.Vector(-50.8, -279.4, 0), App.Vector(-95.742136, -234.457864, 0)),  # 10
    Part.ArcOfCircle(Part.Circle(App.Vector(-81.6, -220.315729, 0), App.Vector(0, 0, 1), 20), math.radians(-180), math.radians(-135)),  # 11
    Part.LineSegment(App.Vector(-101.6, -220.315729, 0), App.Vector(-101.6, 220.315729, 0)),  # 12
    Part.ArcOfCircle(Part.Circle(App.Vector(-81.6, 220.315729, 0), App.Vector(0, 0, 1), 20), math.radians(135), math.radians(180)),  # 13
    Part.LineSegment(App.Vector(-95.742136, 234.457864, 0), App.Vector(-50.8, 279.4, 0)),  # 14
    Part.LineSegment(App.Vector(-50.8, 279.4, 0), App.Vector(-50.8, 355.6, 0)),  # 15
], False)
sketch22.addConstraint([
    Sketcher.Constraint("Coincident", 0, 1, 1, 1),
    Sketcher.Constraint("Coincident", 1, 2, 2, 1),
    Sketcher.Constraint("Tangent", 2, 2, 3, 2),
    Sketcher.Constraint("Tangent", 3, 1, 4, 1),
    Sketcher.Constraint("Tangent", 4, 2, 5, 2),
    Sketcher.Constraint("Tangent", 5, 1, 6, 1),
    Sketcher.Constraint("Coincident", 6, 2, 7, 1),
    Sketcher.Constraint("Coincident", 7, 2, 8, 2),
    Sketcher.Constraint("Coincident", 8, 1, 9, 1),
    Sketcher.Constraint("Coincident", 9, 2, 10, 1),
    Sketcher.Constraint("Tangent", 10, 2, 11, 2),
    Sketcher.Constraint("Tangent", 11, 1, 12, 1),
    Sketcher.Constraint("Tangent", 12, 2, 13, 2),
    Sketcher.Constraint("Tangent", 13, 1, 14, 1),
    Sketcher.Constraint("Coincident", 14, 2, 15, 1),
    Sketcher.Constraint("Coincident", 15, 2, 0, 2),
    Sketcher.Constraint("Vertical", 1),
    Sketcher.Constraint("Vertical", 4),
    Sketcher.Constraint("Vertical", 7),
    Sketcher.Constraint("Vertical", 9),
    Sketcher.Constraint("Vertical", 12),
    Sketcher.Constraint("Vertical", 15),
    Sketcher.Constraint("Equal", 3, 5),
    Sketcher.Constraint("Equal", 0, 8),
    Sketcher.Constraint("Equal", 5, 11),
    Sketcher.Constraint("Equal", 11, 13),
    Sketcher.Constraint("Symmetric", 0, 3, 8, 3, -1, 1),
    Sketcher.Constraint("Symmetric", 3, 3, 11, 3, -1, 1),
    Sketcher.Constraint("Symmetric", 1, 2, 9, 2, -1, 1),
    Sketcher.Constraint("Symmetric", 5, 1, 13, 1, -1, 1),
    Sketcher.Constraint("Symmetric", 7, 2, 8, 1, -2),
    Sketcher.Constraint("Symmetric", 5, 1, 10, 2, -2),
    Sketcher.Constraint("Perpendicular", 2, 6),
    Sketcher.Constraint("Horizontal", 1, 2, 14, 2),
    Sketcher.Constraint("Radius", 0, Q("2.5 in")),
    Sketcher.Constraint("DistanceY", 1, 2, 1, 1, Q("3 in")),
    Sketcher.Constraint("DistanceX", -1, 1, 0, 1, Q("2 in")),
    Sketcher.Constraint("DistanceY", -1, 1, 0, 1, Q("14 in")),
    Sketcher.Constraint("DistanceX", -1, 1, 3, 1, Q("4 in")),
    Sketcher.Constraint("Radius", 3, Q("20 mm")),
])
pad22 = body22.newObject("PartDesign::Pad", "Pad021")
pad22.Profile = sketch22
pad22.Length = Q("0.125 in")
pad22.Reversed = True

doc.recompute()
